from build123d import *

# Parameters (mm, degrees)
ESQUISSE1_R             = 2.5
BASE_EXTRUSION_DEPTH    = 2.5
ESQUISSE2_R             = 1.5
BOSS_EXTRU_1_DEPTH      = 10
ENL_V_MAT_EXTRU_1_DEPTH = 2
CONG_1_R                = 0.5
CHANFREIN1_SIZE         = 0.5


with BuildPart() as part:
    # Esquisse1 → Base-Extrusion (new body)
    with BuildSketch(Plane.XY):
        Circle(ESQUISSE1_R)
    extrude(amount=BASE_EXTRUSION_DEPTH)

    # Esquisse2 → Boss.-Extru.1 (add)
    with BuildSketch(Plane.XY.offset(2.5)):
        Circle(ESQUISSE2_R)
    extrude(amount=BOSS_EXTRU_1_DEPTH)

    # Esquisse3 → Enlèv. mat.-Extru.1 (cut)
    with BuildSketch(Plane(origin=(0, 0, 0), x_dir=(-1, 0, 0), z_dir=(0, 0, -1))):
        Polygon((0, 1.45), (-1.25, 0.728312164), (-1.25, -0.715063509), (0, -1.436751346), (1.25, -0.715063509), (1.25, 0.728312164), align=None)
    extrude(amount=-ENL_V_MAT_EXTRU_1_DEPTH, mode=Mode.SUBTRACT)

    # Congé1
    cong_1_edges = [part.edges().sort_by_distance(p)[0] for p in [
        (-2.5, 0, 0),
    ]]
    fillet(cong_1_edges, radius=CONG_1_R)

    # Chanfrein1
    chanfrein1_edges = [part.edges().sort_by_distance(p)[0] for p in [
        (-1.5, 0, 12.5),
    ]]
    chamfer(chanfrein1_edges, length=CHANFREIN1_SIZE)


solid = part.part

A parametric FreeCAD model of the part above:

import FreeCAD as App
import Part
import Sketcher

V = App.Vector
Q = App.Units.Quantity


def edges_at(feature, points):
    """Names of the edges that pass closest to the given points."""
    edges = feature.Shape.Edges
    near = lambda p: min(range(len(edges)), key=lambda i: edges[i].distToShape(Part.Vertex(*p))[0])
    return sorted({f"Edge{near(p) + 1}" for p in points})

doc = App.newDocument("Part")
body = doc.addObject("PartDesign::Body", "Body")

# Sketch on XY plane
sketch1 = body.newObject("Sketcher::SketchObject", "Sketch")
sketch1.AttachmentSupport = (doc.getObject("XY_Plane"), [""])
sketch1.MapMode = "FlatFace"
sketch1.addGeometry(Part.Circle(V(0, 0, 0), V(0, 0, 1), 2.5), False)
sketch1.addConstraint([
    Sketcher.Constraint("Coincident", 0, 3, -1, 1),
    Sketcher.Constraint("Diameter", 0, 5.0),
])
pad1 = body.newObject("PartDesign::Pad", "Pad")
pad1.Profile = sketch1
pad1.Length = 2.5

# Sketch on XY plane
sketch2 = body.newObject("Sketcher::SketchObject", "Sketch001")
sketch2.AttachmentSupport = (doc.getObject("XY_Plane"), [""])
sketch2.MapMode = "FlatFace"
sketch2.AttachmentOffset = App.Placement(V(0, 0, 2.5), App.Rotation())
sketch2.addGeometry(Part.Circle(V(0, 0, 0), V(0, 0, 1), 1.5), False)
sketch2.addConstraint([
    Sketcher.Constraint("Coincident", 0, 3, -1, 1),
    Sketcher.Constraint("Diameter", 0, 3.0),
])
pad2 = body.newObject("PartDesign::Pad", "Pad001")
pad2.Profile = sketch2
pad2.Length = 10

# Sketch on XY plane
sketch3 = body.newObject("Sketcher::SketchObject", "Sketch002")
sketch3.AttachmentSupport = (doc.getObject("XY_Plane"), [""])
sketch3.MapMode = "FlatFace"
sketch3.addGeometry([
    Part.LineSegment(V(0, 1.4, 0), V(1.2, 0.7, 0)),  # 0
    Part.LineSegment(V(1.2, 0.7, 0), V(1.2, -0.7, 0)),  # 1
    Part.LineSegment(V(1.2, -0.7, 0), V(0, -1.4, 0)),  # 2
    Part.LineSegment(V(0, -1.4, 0), V(-1.2, -0.7, 0)),  # 3
    Part.LineSegment(V(-1.2, -0.7, 0), V(-1.2, 0.7, 0)),  # 4
    Part.LineSegment(V(-1.2, 0.7, 0), V(0, 1.4, 0)),  # 5
], False)
sketch3.addConstraint([
    Sketcher.Constraint("Coincident", 0, 2, 1, 1),
    Sketcher.Constraint("Coincident", 1, 2, 2, 1),
    Sketcher.Constraint("Coincident", 2, 2, 3, 1),
    Sketcher.Constraint("Coincident", 3, 2, 4, 1),
    Sketcher.Constraint("Coincident", 4, 2, 5, 1),
    Sketcher.Constraint("Coincident", 5, 2, 0, 1),
    Sketcher.Constraint("Vertical", 1),
    Sketcher.Constraint("Vertical", 4),
    Sketcher.Constraint("Symmetric", 1, 2, 3, 2, -2),
    Sketcher.Constraint("PointOnObject", 2, 2, -2),
    Sketcher.Constraint("PointOnObject", 5, 2, -2),
    Sketcher.Constraint("Parallel", 0, 3),
    Sketcher.Constraint("Parallel", 2, 5),
    Sketcher.Constraint("Angle", 0, Q("-30 deg")),
    Sketcher.Constraint("DistanceX", 3, 2, 1, 2, 2.5),
    Sketcher.Constraint("DistanceY", -1, 1, 5, 2, 1.45),
    Sketcher.Constraint("DistanceY", 1, 2, 1, 1, 1.443376),
])
pocket1 = body.newObject("PartDesign::Pocket", "Pocket")
pocket1.Profile = sketch3
pocket1.Length = 2
pocket1.Reversed = True
doc.recompute()

fillet = body.newObject("PartDesign::Fillet", "Fillet")
fillet.Base = (pocket1, edges_at(pocket1, [(-2.5, 0, 0)]))
fillet.Radius = 0.5
doc.recompute()

chamfer = body.newObject("PartDesign::Chamfer", "Chamfer")
chamfer.Base = (fillet, edges_at(fillet, [(-1.5, 0, 12.5)]))
chamfer.Size = 0.5

doc.recompute()
